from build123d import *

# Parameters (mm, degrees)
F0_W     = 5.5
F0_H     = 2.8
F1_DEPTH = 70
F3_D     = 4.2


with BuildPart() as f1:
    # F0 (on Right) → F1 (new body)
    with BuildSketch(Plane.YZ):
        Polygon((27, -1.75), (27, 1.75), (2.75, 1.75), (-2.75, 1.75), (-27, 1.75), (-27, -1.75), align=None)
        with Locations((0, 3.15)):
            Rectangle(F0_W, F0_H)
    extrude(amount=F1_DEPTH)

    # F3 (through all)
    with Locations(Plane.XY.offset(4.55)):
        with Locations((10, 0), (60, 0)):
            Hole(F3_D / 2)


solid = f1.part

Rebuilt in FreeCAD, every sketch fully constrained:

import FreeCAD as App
import Part
import Sketcher
from FreeCAD import Vector


def add_polygon(sketch, points):
    """Adds a closed chain of lines whose ends are joined by coincident constraints."""
    first, n = sketch.GeometryCount, len(points)
    for a, b in zip(points, points[1:] + points[:1]):
        sketch.addGeometry(Part.LineSegment(App.Vector(*a, 0), App.Vector(*b, 0)), False)
    for i in range(n):
        sketch.addConstraint(Sketcher.Constraint("Coincident", first + i, 2, first + (i + 1) % n, 1))

doc = App.newDocument("Part")
body = doc.addObject("PartDesign::Body", "Body")

# Sketch on YZ plane
sketch1 = body.newObject("Sketcher::SketchObject", "Sketch")
sketch1.AttachmentSupport = (doc.getObject("YZ_Plane"), [""])
sketch1.MapMode = "FlatFace"
add_polygon(sketch1, [(27, -1.8), (27, 1.8), (2.8, 1.8), (2.8, 4.5), (-2.8, 4.5), (-2.8, 1.8), (-27, 1.8), (-27, -1.8)])  # lines 0-7
sketch1.addConstraint(Sketcher.Constraint("Vertical", 0))
sketch1.addConstraint(Sketcher.Constraint("Horizontal", 1))
sketch1.addConstraint(Sketcher.Constraint("Vertical", 2))
sketch1.addConstraint(Sketcher.Constraint("Horizontal", 3))
sketch1.addConstraint(Sketcher.Constraint("Vertical", 4))
sketch1.addConstraint(Sketcher.Constraint("Horizontal", 5))
sketch1.addConstraint(Sketcher.Constraint("Vertical", 6))
sketch1.addConstraint(Sketcher.Constraint("Horizontal", 7))
sketch1.addConstraint(Sketcher.Constraint("Symmetric", 0, 2, 6, 2, -1, 1))
sketch1.addConstraint(Sketcher.Constraint("Symmetric", 1, 2, 4, 2, -2))
sketch1.addConstraint(Sketcher.Constraint("DistanceX", 7, 1, 7, 2, 54.0))
sketch1.addConstraint(Sketcher.Constraint("DistanceX", 3, 2, 3, 1, 5.5))
sketch1.addConstraint(Sketcher.Constraint("DistanceY", 0, 1, 0, 2, 3.5))
sketch1.addConstraint(Sketcher.Constraint("DistanceY", 2, 1, 2, 2, 2.8))
pad1 = body.newObject("PartDesign::Pad", "Pad")
pad1.Profile = sketch1
pad1.Length = 70

# Sketch on XY plane
sketch2 = body.newObject("Sketcher::SketchObject", "Sketch001")
sketch2.AttachmentSupport = (doc.getObject("XY_Plane"), [""])
sketch2.MapMode = "FlatFace"
sketch2.AttachmentOffset = App.Placement(Vector(0, 0, 4.55), App.Rotation())
sketch2.addGeometry(Part.Circle(Vector(10, 0, 0), Vector(0, 0, 1), 2.1), False)
sketch2.addGeometry(Part.Circle(Vector(60, 0, 0), Vector(0, 0, 1), 2.1), False)
sketch2.addConstraint(Sketcher.Constraint("Equal", 0, 1))
sketch2.addConstraint(Sketcher.Constraint("PointOnObject", 0, 3, -1))
sketch2.addConstraint(Sketcher.Constraint("PointOnObject", 1, 3, -1))
sketch2.addConstraint(Sketcher.Constraint("Diameter", 0, 4.2))
sketch2.addConstraint(Sketcher.Constraint("DistanceX", -1, 1, 0, 3, 10.0))
sketch2.addConstraint(Sketcher.Constraint("DistanceX", -1, 1, 1, 3, 60.0))
doc.recompute()
hole = body.newObject("PartDesign::Hole", "Hole")
hole.Profile = sketch2
hole.ThreadType = "None"
hole.Diameter = 4.2
hole.DepthType = "ThroughAll"

doc.recompute()
